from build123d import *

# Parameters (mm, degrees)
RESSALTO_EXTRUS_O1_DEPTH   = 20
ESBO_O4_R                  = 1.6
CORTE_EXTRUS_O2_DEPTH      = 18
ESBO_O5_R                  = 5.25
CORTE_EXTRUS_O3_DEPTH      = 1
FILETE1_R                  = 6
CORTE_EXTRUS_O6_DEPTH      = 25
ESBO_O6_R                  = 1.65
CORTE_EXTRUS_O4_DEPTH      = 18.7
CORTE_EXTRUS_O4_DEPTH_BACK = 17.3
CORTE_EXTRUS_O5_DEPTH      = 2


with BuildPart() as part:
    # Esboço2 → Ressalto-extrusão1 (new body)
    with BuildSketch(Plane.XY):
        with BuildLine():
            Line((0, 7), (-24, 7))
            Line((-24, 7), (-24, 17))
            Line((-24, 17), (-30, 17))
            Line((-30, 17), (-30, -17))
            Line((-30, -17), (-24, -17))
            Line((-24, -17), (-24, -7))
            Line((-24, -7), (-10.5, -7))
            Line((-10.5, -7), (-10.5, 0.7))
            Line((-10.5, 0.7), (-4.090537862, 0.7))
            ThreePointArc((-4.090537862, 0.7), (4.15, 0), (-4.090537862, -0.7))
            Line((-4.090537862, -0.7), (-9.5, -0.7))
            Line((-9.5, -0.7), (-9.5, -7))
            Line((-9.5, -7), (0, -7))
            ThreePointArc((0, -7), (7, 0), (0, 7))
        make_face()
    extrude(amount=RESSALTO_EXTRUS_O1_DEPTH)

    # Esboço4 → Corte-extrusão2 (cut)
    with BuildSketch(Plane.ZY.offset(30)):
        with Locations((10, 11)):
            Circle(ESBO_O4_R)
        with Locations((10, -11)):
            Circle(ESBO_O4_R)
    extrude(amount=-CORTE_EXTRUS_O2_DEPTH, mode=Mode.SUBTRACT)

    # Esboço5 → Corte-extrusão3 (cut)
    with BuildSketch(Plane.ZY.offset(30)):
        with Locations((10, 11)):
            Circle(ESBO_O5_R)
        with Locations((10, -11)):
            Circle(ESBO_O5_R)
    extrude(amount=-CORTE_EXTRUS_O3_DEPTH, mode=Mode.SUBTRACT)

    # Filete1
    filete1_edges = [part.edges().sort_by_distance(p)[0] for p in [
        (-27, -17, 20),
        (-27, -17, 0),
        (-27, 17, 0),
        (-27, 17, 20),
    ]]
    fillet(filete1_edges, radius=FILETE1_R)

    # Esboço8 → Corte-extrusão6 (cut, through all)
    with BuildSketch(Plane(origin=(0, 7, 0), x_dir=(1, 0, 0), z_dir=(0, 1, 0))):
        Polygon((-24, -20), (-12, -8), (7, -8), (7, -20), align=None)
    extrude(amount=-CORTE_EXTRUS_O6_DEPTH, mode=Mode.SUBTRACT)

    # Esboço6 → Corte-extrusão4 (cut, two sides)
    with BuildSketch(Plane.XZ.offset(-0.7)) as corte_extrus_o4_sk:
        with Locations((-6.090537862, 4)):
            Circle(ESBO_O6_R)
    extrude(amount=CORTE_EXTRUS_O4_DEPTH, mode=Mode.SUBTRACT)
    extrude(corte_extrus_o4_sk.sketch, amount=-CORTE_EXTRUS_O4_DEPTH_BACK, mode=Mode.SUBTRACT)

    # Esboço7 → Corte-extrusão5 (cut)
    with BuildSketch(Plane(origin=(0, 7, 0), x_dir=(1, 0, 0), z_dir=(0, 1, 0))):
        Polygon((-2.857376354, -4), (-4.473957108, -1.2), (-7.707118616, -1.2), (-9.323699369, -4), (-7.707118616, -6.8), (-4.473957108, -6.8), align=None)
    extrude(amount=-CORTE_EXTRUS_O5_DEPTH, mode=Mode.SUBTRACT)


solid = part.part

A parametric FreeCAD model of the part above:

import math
import FreeCAD as App
import Part
import Sketcher

V = App.Vector
Q = App.Units.Quantity


def edges_at(feature, points):
    """Names of the edges that pass closest to the given points."""
    edges = feature.Shape.Edges
    near = lambda p: min(range(len(edges)), key=lambda i: edges[i].distToShape(Part.Vertex(*p))[0])
    return sorted({f"Edge{near(p) + 1}" for p in points})


def add_polygon(sketch, points):
    """Adds a closed chain of lines whose ends are joined by coincident constraints."""
    first, n = sketch.GeometryCount, len(points)
    for a, b in zip(points, points[1:] + points[:1]):
        sketch.addGeometry(Part.LineSegment(App.Vector(*a, 0), App.Vector(*b, 0)), False)
    for i in range(n):
        sketch.addConstraint(Sketcher.Constraint("Coincident", first + i, 2, first + (i + 1) % n, 1))

doc = App.newDocument("Part")
body = doc.addObject("PartDesign::Body", "Body")

sketch1 = body.newObject("Sketcher::SketchObject", "Sketch")
sketch1.AttachmentSupport = (doc.getObject("XY_Plane"), [""])
sketch1.MapMode = "FlatFace"
sketch1.addGeometry([
    Part.LineSegment(V(0, 7, 0), V(-24, 7, 0)),
    Part.LineSegment(V(-24, 7, 0), V(-24, 17, 0)),
    Part.LineSegment(V(-24, 17, 0), V(-30, 17, 0)),
    Part.LineSegment(V(-30, 17, 0), V(-30, -17, 0)),
    Part.LineSegment(V(-30, -17, 0), V(-24, -17, 0)),
    Part.LineSegment(V(-24, -17, 0), V(-24, -7, 0)),
    Part.LineSegment(V(-24, -7, 0), V(-10.5, -7, 0)),
    Part.LineSegment(V(-10.5, -7, 0), V(-10.5, 0.7, 0)),
    Part.LineSegment(V(-10.5, 0.7, 0), V(-4.1, 0.7, 0)),
    Part.ArcOfCircle(Part.Circle(V(0, 0, 0), V(0, 0, 1), 4.2), math.radians(-170), math.radians(170)),
    Part.LineSegment(V(-4.1, -0.7, 0), V(-9.5, -0.7, 0)),
    Part.LineSegment(V(-9.5, -0.7, 0), V(-9.5, -7, 0)),
    Part.LineSegment(V(-9.5, -7, 0), V(0, -7, 0)),
    Part.ArcOfCircle(Part.Circle(V(0, 0, 0), V(0, 0, 1), 7), math.radians(-90), math.radians(90)),
], False)
sketch1.addConstraint([
    Sketcher.Constraint("Coincident", 0, 2, 1, 1),
    Sketcher.Constraint("Coincident", 1, 2, 2, 1),
    Sketcher.Constraint("Coincident", 2, 2, 3, 1),
    Sketcher.Constraint("Coincident", 3, 2, 4, 1),
    Sketcher.Constraint("Coincident", 4, 2, 5, 1),
    Sketcher.Constraint("Coincident", 5, 2, 6, 1),
    Sketcher.Constraint("Coincident", 6, 2, 7, 1),
    Sketcher.Constraint("Coincident", 7, 2, 8, 1),
    Sketcher.Constraint("Coincident", 8, 2, 9, 2),
    Sketcher.Constraint("Coincident", 9, 1, 10, 1),
    Sketcher.Constraint("Coincident", 10, 2, 11, 1),
    Sketcher.Constraint("Coincident", 11, 2, 12, 1),
    Sketcher.Constraint("Tangent", 12, 2, 13, 1),
    Sketcher.Constraint("Tangent", 13, 2, 0, 1),
    Sketcher.Constraint("Horizontal", 0),
    Sketcher.Constraint("Vertical", 1),
    Sketcher.Constraint("Horizontal", 2),
    Sketcher.Constraint("Vertical", 3),
    Sketcher.Constraint("Horizontal", 4),
    Sketcher.Constraint("Vertical", 5),
    Sketcher.Constraint("Horizontal", 6),
    Sketcher.Constraint("Vertical", 7),
    Sketcher.Constraint("Horizontal", 8),
    Sketcher.Constraint("Horizontal", 10),
    Sketcher.Constraint("Vertical", 11),
    Sketcher.Constraint("Horizontal", 12),
    Sketcher.Constraint("Coincident", 9, 3, -1, 1),
    Sketcher.Constraint("Coincident", 13, 3, -1, 1),
    Sketcher.Constraint("Symmetric", 1, 2, 4, 2, -1),
    Sketcher.Constraint("Horizontal", 6, 2, 11, 2),
    Sketcher.Constraint("Vertical", 8, 2, 9, 1),
    Sketcher.Constraint("Radius", 13, 7.0),
    Sketcher.Constraint("DistanceX", 0, 2, 0, 1, 24.0),
    Sketcher.Constraint("DistanceX", 2, 2, 2, 1, 6.0),
    Sketcher.Constraint("DistanceY", 1, 1, 1, 2, 10.0),
    Sketcher.Constraint("Radius", 9, 4.15),
    Sketcher.Constraint("DistanceX", 6, 1, 6, 2, 13.5),
    Sketcher.Constraint("DistanceX", 12, 1, 12, 2, 9.5),
    Sketcher.Constraint("DistanceY", 7, 1, 7, 2, 7.7),
])
pad1 = body.newObject("PartDesign::Pad", "Pad")
pad1.Profile = sketch1
pad1.Length = 20

sketch2 = body.newObject("Sketcher::SketchObject", "Sketch001")
sketch2.AttachmentSupport = (doc.getObject("YZ_Plane"), [""])
sketch2.MapMode = "FlatFace"
sketch2.AttachmentOffset = App.Placement(V(0, 0, -30), App.Rotation())
sketch2.addGeometry([
    Part.Circle(V(11, 10, 0), V(0, 0, 1), 1.6),
    Part.Circle(V(-11, 10, 0), V(0, 0, 1), 1.6),
], False)
sketch2.addConstraint([
    Sketcher.Constraint("Equal", 0, 1),
    Sketcher.Constraint("Symmetric", 0, 3, 1, 3, -2),
    Sketcher.Constraint("Diameter", 0, 3.2),
    Sketcher.Constraint("DistanceX", -1, 1, 0, 3, 11.0),
    Sketcher.Constraint("DistanceY", -1, 1, 0, 3, 10.0),
])
pocket1 = body.newObject("PartDesign::Pocket", "Pocket")
pocket1.Profile = sketch2
pocket1.Length = 18
pocket1.Reversed = True

sketch3 = body.newObject("Sketcher::SketchObject", "Sketch002")
sketch3.AttachmentSupport = (doc.getObject("YZ_Plane"), [""])
sketch3.MapMode = "FlatFace"
sketch3.AttachmentOffset = App.Placement(V(0, 0, -30), App.Rotation())
sketch3.addGeometry([
    Part.Circle(V(11, 10, 0), V(0, 0, 1), 5),
    Part.Circle(V(-11, 10, 0), V(0, 0, 1), 5),
], False)
sketch3.addConstraint([
    Sketcher.Constraint("Equal", 0, 1),
    Sketcher.Constraint("Symmetric", 0, 3, 1, 3, -2),
    Sketcher.Constraint("Diameter", 0, 10.5),
    Sketcher.Constraint("DistanceX", -1, 1, 0, 3, 11.0),
    Sketcher.Constraint("DistanceY", -1, 1, 0, 3, 10.0),
])
pocket2 = body.newObject("PartDesign::Pocket", "Pocket001")
pocket2.Profile = sketch3
pocket2.Length = 1
pocket2.Reversed = True
doc.recompute()

fillet = body.newObject("PartDesign::Fillet", "Fillet")
fillet.Base = (pocket2, edges_at(pocket2, [
    (-27, -17, 20),
    (-27, -17, 0),
    (-27, 17, 0),
    (-27, 17, 20),
]))
fillet.Radius = 6

sketch4 = body.newObject("Sketcher::SketchObject", "Sketch003")
sketch4.AttachmentSupport = (doc.getObject("XZ_Plane"), [""])
sketch4.MapMode = "FlatFace"
sketch4.AttachmentOffset = App.Placement(V(0, 0, -7), App.Rotation())
add_polygon(sketch4, [(-12, 8), (-24, 20), (7, 20), (7, 8)])
sketch4.addConstraint([
    Sketcher.Constraint("Horizontal", 1),
    Sketcher.Constraint("Vertical", 2),
    Sketcher.Constraint("Horizontal", 3),
    Sketcher.Constraint("DistanceX", 1, 1, 1, 2, 31.0),
    Sketcher.Constraint("DistanceX", 3, 2, 3, 1, 19.0),
    Sketcher.Constraint("DistanceY", 2, 2, 2, 1, 12.0),
    Sketcher.Constraint("DistanceX", 0, 2, -1, 1, 24.0),
    Sketcher.Constraint("DistanceY", -1, 1, 0, 2, 20.0),
])
pocket3 = body.newObject("PartDesign::Pocket", "Pocket002")
pocket3.Profile = sketch4
pocket3.Type = "ThroughAll"
pocket3.Reversed = True

sketch5 = body.newObject("Sketcher::SketchObject", "Sketch004")
sketch5.AttachmentSupport = (doc.getObject("XZ_Plane"), [""])
sketch5.MapMode = "FlatFace"
sketch5.AttachmentOffset = App.Placement(V(0, 0, -0.7), App.Rotation())
sketch5.addGeometry(Part.Circle(V(-6.1, 4, 0), V(0, 0, 1), 1.6), False)
sketch5.addConstraint([
    Sketcher.Constraint("Diameter", 0, 3.3),
    Sketcher.Constraint("DistanceY", -1, 1, 0, 3, 4.0),
    Sketcher.Constraint("DistanceX", 0, 3, -1, 1, 6.090538),
])
pocket4 = body.newObject("PartDesign::Pocket", "Pocket003")
pocket4.Profile = sketch5
pocket4.Type = "ThroughAll"
pocket4.Midplane = True

sketch6 = body.newObject("Sketcher::SketchObject", "Sketch005")
sketch6.AttachmentSupport = (doc.getObject("XZ_Plane"), [""])
sketch6.MapMode = "FlatFace"
sketch6.AttachmentOffset = App.Placement(V(0, 0, -7), App.Rotation())
add_polygon(sketch6, [(-2.9, 4), (-4.5, 1.2), (-7.7, 1.2), (-9.3, 4), (-7.7, 6.8), (-4.5, 6.8)])
sketch6.addConstraint([
    Sketcher.Constraint("Horizontal", 1),
    Sketcher.Constraint("Horizontal", 4),
    Sketcher.Constraint("Parallel", 0, 3),
    Sketcher.Constraint("Parallel", 2, 5),
    Sketcher.Constraint("Horizontal", 2, 2, 5, 2),
    Sketcher.Constraint("Vertical", 1, 2, 3, 2),
    Sketcher.Constraint("Vertical", 0, 2, 4, 2),
    Sketcher.Constraint("Angle", 0, Q("-120 deg")),
    Sketcher.Constraint("DistanceY", -1, 1, 2, 2, 4.0),
    Sketcher.Constraint("DistanceY", -1, 1, 0, 2, 1.2),
    Sketcher.Constraint("DistanceX", 1, 2, 1, 1, 3.233162),
    Sketcher.Constraint("DistanceX", 2, 2, -1, 1, 9.323699),
])
pocket5 = body.newObject("PartDesign::Pocket", "Pocket004")
pocket5.Profile = sketch6
pocket5.Length = 2
pocket5.Reversed = True

doc.recompute()
